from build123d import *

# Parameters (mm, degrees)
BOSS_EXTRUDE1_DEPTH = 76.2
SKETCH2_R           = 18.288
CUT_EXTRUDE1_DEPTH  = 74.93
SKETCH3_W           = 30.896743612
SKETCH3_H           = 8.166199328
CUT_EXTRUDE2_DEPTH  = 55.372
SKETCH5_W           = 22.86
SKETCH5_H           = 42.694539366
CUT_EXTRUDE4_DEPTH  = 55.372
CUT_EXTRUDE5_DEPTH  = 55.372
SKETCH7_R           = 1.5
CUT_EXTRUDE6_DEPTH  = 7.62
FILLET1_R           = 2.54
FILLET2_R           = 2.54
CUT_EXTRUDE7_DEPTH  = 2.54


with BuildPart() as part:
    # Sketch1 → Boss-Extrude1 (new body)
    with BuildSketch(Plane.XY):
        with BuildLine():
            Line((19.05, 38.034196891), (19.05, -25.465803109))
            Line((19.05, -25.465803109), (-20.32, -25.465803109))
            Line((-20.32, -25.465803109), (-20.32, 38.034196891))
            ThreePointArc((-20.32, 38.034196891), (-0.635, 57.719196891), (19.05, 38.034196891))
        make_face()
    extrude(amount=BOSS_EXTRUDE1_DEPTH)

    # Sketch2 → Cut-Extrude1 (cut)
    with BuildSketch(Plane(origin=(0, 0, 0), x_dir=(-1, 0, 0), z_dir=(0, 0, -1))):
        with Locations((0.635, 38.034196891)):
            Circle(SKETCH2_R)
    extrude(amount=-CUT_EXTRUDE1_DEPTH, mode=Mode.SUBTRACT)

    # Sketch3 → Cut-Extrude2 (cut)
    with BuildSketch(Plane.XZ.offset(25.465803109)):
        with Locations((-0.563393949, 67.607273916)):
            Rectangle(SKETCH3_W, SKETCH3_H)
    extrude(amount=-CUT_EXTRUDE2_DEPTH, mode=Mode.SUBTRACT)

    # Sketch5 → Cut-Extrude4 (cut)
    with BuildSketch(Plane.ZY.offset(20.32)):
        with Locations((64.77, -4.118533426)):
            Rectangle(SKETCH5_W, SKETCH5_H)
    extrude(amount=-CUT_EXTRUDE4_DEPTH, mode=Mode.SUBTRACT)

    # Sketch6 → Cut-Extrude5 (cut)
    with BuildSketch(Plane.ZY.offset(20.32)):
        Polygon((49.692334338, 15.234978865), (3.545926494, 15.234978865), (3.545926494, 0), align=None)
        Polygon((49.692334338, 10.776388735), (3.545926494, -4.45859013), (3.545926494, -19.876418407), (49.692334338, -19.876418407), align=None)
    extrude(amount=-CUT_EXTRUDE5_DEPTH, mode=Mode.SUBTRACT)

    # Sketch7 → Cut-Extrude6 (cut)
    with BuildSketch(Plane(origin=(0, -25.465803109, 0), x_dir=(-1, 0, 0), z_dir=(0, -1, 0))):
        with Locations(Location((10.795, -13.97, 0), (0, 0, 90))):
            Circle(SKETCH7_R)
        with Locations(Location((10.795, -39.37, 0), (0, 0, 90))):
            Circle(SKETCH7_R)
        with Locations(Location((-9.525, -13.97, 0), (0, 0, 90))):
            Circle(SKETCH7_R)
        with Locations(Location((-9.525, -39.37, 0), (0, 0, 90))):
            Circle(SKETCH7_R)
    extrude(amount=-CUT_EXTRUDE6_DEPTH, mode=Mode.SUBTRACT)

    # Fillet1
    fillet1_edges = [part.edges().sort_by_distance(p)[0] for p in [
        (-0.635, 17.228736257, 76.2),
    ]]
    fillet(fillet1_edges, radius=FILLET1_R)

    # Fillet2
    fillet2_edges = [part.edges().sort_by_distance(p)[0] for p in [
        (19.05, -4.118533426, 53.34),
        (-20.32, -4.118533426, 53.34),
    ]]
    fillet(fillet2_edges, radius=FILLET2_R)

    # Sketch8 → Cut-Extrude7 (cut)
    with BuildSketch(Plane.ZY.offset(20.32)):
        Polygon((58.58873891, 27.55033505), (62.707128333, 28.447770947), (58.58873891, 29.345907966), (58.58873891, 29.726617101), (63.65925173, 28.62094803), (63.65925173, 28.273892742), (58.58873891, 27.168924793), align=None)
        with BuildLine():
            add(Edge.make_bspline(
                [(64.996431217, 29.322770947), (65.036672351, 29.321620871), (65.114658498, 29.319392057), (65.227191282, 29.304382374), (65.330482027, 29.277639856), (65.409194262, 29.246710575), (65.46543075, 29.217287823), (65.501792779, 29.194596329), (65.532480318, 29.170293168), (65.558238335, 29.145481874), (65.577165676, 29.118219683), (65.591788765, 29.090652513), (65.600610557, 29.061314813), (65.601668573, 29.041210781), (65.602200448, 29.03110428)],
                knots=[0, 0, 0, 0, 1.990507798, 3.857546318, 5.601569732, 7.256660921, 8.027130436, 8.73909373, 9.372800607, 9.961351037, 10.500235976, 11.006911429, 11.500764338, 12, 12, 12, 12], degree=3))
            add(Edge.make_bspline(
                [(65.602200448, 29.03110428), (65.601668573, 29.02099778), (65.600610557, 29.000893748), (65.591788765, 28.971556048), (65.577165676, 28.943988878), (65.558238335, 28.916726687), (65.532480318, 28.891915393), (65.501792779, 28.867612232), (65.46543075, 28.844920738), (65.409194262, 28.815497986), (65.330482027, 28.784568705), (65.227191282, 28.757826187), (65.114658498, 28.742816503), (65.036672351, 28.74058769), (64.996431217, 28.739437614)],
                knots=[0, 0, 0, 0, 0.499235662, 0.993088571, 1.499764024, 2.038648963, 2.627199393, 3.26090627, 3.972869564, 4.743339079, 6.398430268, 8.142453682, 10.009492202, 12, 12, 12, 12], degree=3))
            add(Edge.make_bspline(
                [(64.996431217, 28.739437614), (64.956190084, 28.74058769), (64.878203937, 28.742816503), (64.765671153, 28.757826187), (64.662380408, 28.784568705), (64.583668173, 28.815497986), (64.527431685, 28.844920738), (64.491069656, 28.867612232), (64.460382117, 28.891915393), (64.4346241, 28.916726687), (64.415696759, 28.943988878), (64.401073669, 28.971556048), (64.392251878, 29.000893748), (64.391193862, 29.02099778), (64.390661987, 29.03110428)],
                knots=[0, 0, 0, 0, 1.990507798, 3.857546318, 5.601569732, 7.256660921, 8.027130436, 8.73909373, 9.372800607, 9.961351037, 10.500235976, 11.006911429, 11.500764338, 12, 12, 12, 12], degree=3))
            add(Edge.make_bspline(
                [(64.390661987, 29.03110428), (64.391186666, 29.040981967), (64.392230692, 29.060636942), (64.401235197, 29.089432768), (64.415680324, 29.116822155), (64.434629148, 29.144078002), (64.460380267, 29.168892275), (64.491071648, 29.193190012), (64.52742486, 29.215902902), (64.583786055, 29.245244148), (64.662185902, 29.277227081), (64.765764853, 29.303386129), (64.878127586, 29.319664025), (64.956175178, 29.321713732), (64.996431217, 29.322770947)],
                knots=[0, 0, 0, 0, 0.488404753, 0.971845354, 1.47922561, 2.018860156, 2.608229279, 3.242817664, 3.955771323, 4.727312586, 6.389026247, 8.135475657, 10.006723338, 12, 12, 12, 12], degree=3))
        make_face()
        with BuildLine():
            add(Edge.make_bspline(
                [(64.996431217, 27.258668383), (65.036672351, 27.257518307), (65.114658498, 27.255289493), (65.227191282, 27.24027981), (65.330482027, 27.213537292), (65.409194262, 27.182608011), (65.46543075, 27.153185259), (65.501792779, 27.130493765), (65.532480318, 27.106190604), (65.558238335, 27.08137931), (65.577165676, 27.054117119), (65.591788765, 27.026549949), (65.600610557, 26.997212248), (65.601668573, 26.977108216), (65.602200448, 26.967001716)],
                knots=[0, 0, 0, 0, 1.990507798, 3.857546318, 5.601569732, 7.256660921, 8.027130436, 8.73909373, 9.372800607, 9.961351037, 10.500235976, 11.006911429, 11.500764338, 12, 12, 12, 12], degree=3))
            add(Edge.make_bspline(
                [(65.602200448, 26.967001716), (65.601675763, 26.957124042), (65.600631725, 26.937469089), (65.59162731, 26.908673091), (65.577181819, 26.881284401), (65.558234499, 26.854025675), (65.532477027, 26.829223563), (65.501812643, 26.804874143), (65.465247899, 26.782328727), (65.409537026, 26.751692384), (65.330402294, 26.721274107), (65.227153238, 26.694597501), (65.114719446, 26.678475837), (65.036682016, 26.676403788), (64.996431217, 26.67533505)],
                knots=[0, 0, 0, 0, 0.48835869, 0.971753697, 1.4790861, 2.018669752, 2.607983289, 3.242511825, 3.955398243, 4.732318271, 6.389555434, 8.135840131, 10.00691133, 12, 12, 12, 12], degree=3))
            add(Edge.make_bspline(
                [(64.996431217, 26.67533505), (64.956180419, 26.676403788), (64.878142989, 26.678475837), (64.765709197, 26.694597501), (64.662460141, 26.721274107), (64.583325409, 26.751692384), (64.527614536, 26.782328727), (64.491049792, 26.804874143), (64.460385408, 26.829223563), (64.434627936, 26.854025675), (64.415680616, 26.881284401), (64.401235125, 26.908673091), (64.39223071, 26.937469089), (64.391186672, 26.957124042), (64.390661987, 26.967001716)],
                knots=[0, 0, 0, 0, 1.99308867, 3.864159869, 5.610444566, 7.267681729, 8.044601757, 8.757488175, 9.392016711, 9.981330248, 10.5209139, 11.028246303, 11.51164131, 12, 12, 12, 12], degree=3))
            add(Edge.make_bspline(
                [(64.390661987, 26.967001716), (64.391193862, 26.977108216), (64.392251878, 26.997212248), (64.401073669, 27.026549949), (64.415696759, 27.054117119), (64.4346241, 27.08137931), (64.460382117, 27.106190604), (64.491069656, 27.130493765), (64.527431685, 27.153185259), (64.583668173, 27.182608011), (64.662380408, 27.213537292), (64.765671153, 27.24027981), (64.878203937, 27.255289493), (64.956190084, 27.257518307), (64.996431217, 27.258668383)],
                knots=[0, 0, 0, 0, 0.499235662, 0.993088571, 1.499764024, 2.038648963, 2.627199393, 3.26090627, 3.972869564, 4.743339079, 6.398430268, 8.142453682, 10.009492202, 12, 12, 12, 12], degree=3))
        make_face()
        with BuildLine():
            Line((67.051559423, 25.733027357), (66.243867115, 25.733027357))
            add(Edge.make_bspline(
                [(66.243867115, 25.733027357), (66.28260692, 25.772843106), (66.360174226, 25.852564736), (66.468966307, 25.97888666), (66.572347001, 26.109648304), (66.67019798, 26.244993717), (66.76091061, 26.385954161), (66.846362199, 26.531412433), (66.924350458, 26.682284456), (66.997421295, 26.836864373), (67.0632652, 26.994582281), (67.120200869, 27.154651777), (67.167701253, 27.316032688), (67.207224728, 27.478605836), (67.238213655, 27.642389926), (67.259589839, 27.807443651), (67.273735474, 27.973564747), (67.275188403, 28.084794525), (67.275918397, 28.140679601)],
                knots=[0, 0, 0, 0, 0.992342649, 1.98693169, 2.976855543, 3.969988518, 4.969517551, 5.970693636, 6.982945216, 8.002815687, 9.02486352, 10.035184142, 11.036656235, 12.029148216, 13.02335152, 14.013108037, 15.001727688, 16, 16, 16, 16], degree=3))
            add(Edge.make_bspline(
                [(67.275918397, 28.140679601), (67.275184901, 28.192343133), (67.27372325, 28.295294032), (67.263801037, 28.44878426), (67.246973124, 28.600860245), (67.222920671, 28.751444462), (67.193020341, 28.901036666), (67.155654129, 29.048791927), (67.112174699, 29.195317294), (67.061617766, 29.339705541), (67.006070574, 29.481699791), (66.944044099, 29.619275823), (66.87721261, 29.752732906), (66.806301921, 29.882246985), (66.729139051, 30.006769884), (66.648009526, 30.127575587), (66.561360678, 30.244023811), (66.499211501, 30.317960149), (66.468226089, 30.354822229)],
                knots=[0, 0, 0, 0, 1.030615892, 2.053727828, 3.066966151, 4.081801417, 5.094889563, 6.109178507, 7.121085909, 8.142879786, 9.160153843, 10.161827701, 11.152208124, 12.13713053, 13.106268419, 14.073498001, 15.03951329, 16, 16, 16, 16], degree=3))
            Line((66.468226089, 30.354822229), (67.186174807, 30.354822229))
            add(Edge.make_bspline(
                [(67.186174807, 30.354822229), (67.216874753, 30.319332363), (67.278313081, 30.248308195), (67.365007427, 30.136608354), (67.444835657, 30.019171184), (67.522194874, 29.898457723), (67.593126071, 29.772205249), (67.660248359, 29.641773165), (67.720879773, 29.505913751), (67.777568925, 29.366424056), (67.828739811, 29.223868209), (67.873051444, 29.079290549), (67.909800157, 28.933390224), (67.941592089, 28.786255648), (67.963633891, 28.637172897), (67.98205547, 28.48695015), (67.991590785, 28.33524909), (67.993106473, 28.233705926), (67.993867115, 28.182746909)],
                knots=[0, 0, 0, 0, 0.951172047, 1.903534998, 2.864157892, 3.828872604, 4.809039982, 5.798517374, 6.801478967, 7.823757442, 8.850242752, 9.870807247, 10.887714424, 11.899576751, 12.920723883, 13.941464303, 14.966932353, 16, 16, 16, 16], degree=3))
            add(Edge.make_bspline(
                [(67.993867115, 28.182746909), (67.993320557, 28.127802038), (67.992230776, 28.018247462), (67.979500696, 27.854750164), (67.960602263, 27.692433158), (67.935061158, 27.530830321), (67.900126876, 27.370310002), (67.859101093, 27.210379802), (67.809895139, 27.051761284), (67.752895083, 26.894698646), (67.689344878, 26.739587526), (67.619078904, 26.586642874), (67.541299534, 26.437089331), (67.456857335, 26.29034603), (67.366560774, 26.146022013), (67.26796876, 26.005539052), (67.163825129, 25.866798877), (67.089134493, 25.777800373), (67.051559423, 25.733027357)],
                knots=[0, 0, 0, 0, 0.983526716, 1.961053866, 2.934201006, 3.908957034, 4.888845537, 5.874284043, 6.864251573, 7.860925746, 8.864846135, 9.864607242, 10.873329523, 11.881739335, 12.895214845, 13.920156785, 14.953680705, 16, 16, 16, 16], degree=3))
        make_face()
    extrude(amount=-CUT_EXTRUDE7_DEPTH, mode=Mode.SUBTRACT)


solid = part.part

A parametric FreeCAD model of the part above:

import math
import FreeCAD as App
import Part
import Sketcher
Q = App.Units.Quantity


def edges_at(feature, points):
    """Names of the edges that pass closest to the given points."""
    edges = feature.Shape.Edges
    near = lambda p: min(range(len(edges)), key=lambda i: edges[i].distToShape(Part.Vertex(*p))[0])
    return sorted({f"Edge{near(p) + 1}" for p in points})

doc = App.newDocument("Part")
body = doc.addObject("PartDesign::Body", "Body")

sketch1 = body.newObject("Sketcher::SketchObject", "Sketch")
sketch1.AttachmentSupport = (doc.getObject("XY_Plane"), [""])
sketch1.MapMode = "FlatFace"
sketch1.addGeometry([
    Part.LineSegment(App.Vector(19.05, -25.465803, 0), App.Vector(19.05, 38.034197, 0)),
    Part.ArcOfCircle(Part.Circle(App.Vector(-0.635, 38.034197, 0), App.Vector(0, 0, 1), 19.685), math.radians(0), math.radians(180)),
    Part.LineSegment(App.Vector(-20.32, 38.034197, 0), App.Vector(-20.32, -25.465803, 0)),
    Part.LineSegment(App.Vector(-20.32, -25.465803, 0), App.Vector(19.05, -25.465803, 0)),
], False)
sketch1.addConstraint([
    Sketcher.Constraint("Tangent", 0, 2, 1, 1),
    Sketcher.Constraint("Tangent", 1, 2, 2, 1),
    Sketcher.Constraint("Coincident", 2, 2, 3, 1),
    Sketcher.Constraint("Coincident", 3, 2, 0, 1),
    Sketcher.Constraint("Vertical", 0),
    Sketcher.Constraint("Vertical", 2),
    Sketcher.Constraint("Horizontal", 3),
    Sketcher.Constraint("DistanceY", 0, 1, 0, 2, Q("2.5 in")),
    Sketcher.Constraint("Radius", 1, Q("0.775 in")),
    Sketcher.Constraint("DistanceX", 1, 2, -1, 1, Q("0.8 in")),
    Sketcher.Constraint("DistanceY", -1, 1, 1, 3, 38.034197),
])
pad1 = body.newObject("PartDesign::Pad", "Pad")
pad1.Profile = sketch1
pad1.Length = Q("3 in")

sketch2 = body.newObject("Sketcher::SketchObject", "Sketch001")
sketch2.AttachmentSupport = (doc.getObject("XY_Plane"), [""])
sketch2.MapMode = "FlatFace"
sketch2.addGeometry(Part.Circle(App.Vector(-0.635, 38.034197, 0), App.Vector(0, 0, 1), 18.288), False)
sketch2.addConstraint([
    Sketcher.Constraint("Diameter", 0, Q("1.44 in")),
    Sketcher.Constraint("DistanceX", 0, 3, -1, 1, Q("0.025 in")),
    Sketcher.Constraint("DistanceY", -1, 1, 0, 3, 38.034197),
])
pocket1 = body.newObject("PartDesign::Pocket", "Pocket")
pocket1.Profile = sketch2
pocket1.Length = Q("2.95 in")
pocket1.Reversed = True

sketch3 = body.newObject("Sketcher::SketchObject", "Sketch002")
sketch3.AttachmentSupport = (doc.getObject("XZ_Plane"), [""])
sketch3.MapMode = "FlatFace"
sketch3.AttachmentOffset = App.Placement(App.Vector(0, 0, 25.465803), App.Rotation())
sketch3.addGeometry([
    Part.LineSegment(App.Vector(-16.011766, 71.690374, 0), App.Vector(-16.011766, 63.524174, 0)),
    Part.LineSegment(App.Vector(-16.011766, 63.524174, 0), App.Vector(14.884978, 63.524174, 0)),
    Part.LineSegment(App.Vector(14.884978, 63.524174, 0), App.Vector(14.884978, 71.690374, 0)),
    Part.LineSegment(App.Vector(14.884978, 71.690374, 0), App.Vector(-16.011766, 71.690374, 0)),
], False)
sketch3.addConstraint([
    Sketcher.Constraint("Coincident", 0, 2, 1, 1),
    Sketcher.Constraint("Coincident", 1, 2, 2, 1),
    Sketcher.Constraint("Coincident", 2, 2, 3, 1),
    Sketcher.Constraint("Coincident", 3, 2, 0, 1),
    Sketcher.Constraint("Vertical", 0),
    Sketcher.Constraint("Horizontal", 1),
    Sketcher.Constraint("Vertical", 2),
    Sketcher.Constraint("Horizontal", 3),
    Sketcher.Constraint("DistanceY", 0, 2, 0, 1, 8.166199),
    Sketcher.Constraint("DistanceX", 1, 1, 1, 2, 30.896744),
    Sketcher.Constraint("DistanceX", 0, 2, -1, 1, 16.011766),
    Sketcher.Constraint("DistanceY", -1, 1, 0, 2, 63.524174),
])
pocket2 = body.newObject("PartDesign::Pocket", "Pocket001")
pocket2.Profile = sketch3
pocket2.Length = Q("2.18 in")

sketch4 = body.newObject("Sketcher::SketchObject", "Sketch003")
sketch4.AttachmentSupport = (doc.getObject("YZ_Plane"), [""])
sketch4.MapMode = "FlatFace"
sketch4.AttachmentOffset = App.Placement(App.Vector(0, 0, -0.8 * 25.4), App.Rotation())
sketch4.addGeometry([
    Part.LineSegment(App.Vector(17.228736, 53.34, 0), App.Vector(-25.465803, 53.34, 0)),
    Part.LineSegment(App.Vector(-25.465803, 53.34, 0), App.Vector(-25.465803, 76.2, 0)),
    Part.LineSegment(App.Vector(-25.465803, 76.2, 0), App.Vector(17.228736, 76.2, 0)),
    Part.LineSegment(App.Vector(17.228736, 76.2, 0), App.Vector(17.228736, 53.34, 0)),
], False)
sketch4.addConstraint([
    Sketcher.Constraint("Coincident", 0, 2, 1, 1),
    Sketcher.Constraint("Coincident", 1, 2, 2, 1),
    Sketcher.Constraint("Coincident", 2, 2, 3, 1),
    Sketcher.Constraint("Coincident", 3, 2, 0, 1),
    Sketcher.Constraint("Horizontal", 0),
    Sketcher.Constraint("Vertical", 1),
    Sketcher.Constraint("Horizontal", 2),
    Sketcher.Constraint("Vertical", 3),
    Sketcher.Constraint("DistanceY", 1, 1, 1, 2, Q("0.9 in")),
    Sketcher.Constraint("DistanceY", -1, 1, 1, 2, Q("3 in")),
    Sketcher.Constraint("DistanceX", 0, 2, 0, 1, 42.694539),
    Sketcher.Constraint("DistanceX", 0, 2, -1, 1, 25.465803),
])
pocket3 = body.newObject("PartDesign::Pocket", "Pocket002")
pocket3.Profile = sketch4
pocket3.Length = Q("2.18 in")
pocket3.Reversed = True

sketch5 = body.newObject("Sketcher::SketchObject", "Sketch004")
sketch5.AttachmentSupport = (doc.getObject("YZ_Plane"), [""])
sketch5.MapMode = "FlatFace"
sketch5.AttachmentOffset = App.Placement(App.Vector(0, 0, -0.8 * 25.4), App.Rotation())
sketch5.addGeometry([
    Part.LineSegment(App.Vector(15.234979, 49.692334, 0), App.Vector(15.234979, 3.545926, 0)),
    Part.LineSegment(App.Vector(15.234979, 3.545926, 0), App.Vector(0, 3.545926, 0)),
    Part.LineSegment(App.Vector(0, 3.545926, 0), App.Vector(15.234979, 49.692334, 0)),
    Part.LineSegment(App.Vector(10.776389, 49.692334, 0), App.Vector(-4.45859, 3.545926, 0)),
    Part.LineSegment(App.Vector(-4.45859, 3.545926, 0), App.Vector(-19.876418, 3.545926, 0)),
    Part.LineSegment(App.Vector(-19.876418, 3.545926, 0), App.Vector(-19.876418, 49.692334, 0)),
    Part.LineSegment(App.Vector(-19.876418, 49.692334, 0), App.Vector(10.776389, 49.692334, 0)),
], False)
sketch5.addConstraint([
    Sketcher.Constraint("Coincident", 0, 2, 1, 1),
    Sketcher.Constraint("Coincident", 1, 2, 2, 1),
    Sketcher.Constraint("Coincident", 2, 2, 0, 1),
    Sketcher.Constraint("Coincident", 3, 2, 4, 1),
    Sketcher.Constraint("Coincident", 4, 2, 5, 1),
    Sketcher.Constraint("Coincident", 5, 2, 6, 1),
    Sketcher.Constraint("Coincident", 6, 2, 3, 1),
    Sketcher.Constraint("Vertical", 0),
    Sketcher.Constraint("Horizontal", 1),
    Sketcher.Constraint("Horizontal", 4),
    Sketcher.Constraint("Vertical", 5),
    Sketcher.Constraint("Horizontal", 6),
    Sketcher.Constraint("PointOnObject", 1, 2, -2),
    Sketcher.Constraint("Parallel", 2, 3),
    Sketcher.Constraint("Horizontal", 1, 2, 3, 2),
    Sketcher.Constraint("Horizontal", 2, 2, 5, 2),
    Sketcher.Constraint("DistanceX", 1, 2, 1, 1, 15.234979),
    Sketcher.Constraint("DistanceX", 4, 2, 4, 1, 15.417828),
    Sketcher.Constraint("Distance", 2, 48.59625),
    Sketcher.Constraint("DistanceX", 3, 2, -1, 1, 4.45859),
    Sketcher.Constraint("DistanceY", -1, 1, 0, 2, 3.545926),
])
pocket4 = body.newObject("PartDesign::Pocket", "Pocket003")
pocket4.Profile = sketch5
pocket4.Length = Q("2.18 in")
pocket4.Reversed = True

sketch6 = body.newObject("Sketcher::SketchObject", "Sketch005")
sketch6.AttachmentSupport = (doc.getObject("XZ_Plane"), [""])
sketch6.MapMode = "FlatFace"
sketch6.AttachmentOffset = App.Placement(App.Vector(0, 0, 25.465803), App.Rotation())
sketch6.addGeometry([
    Part.Circle(App.Vector(-10.795, 13.97, 0), App.Vector(0, 0, 1), 1.5),
    Part.Circle(App.Vector(-10.795, 39.37, 0), App.Vector(0, 0, 1), 1.5),
    Part.Circle(App.Vector(9.525, 13.97, 0), App.Vector(0, 0, 1), 1.5),
    Part.Circle(App.Vector(9.525, 39.37, 0), App.Vector(0, 0, 1), 1.5),
], False)
sketch6.addConstraint([
    Sketcher.Constraint("Equal", 0, 1),
    Sketcher.Constraint("Equal", 1, 2),
    Sketcher.Constraint("Equal", 2, 3),
    Sketcher.Constraint("Horizontal", 0, 3, 2, 3),
    Sketcher.Constraint("Horizontal", 1, 3, 3, 3),
    Sketcher.Constraint("Vertical", 0, 3, 1, 3),
    Sketcher.Constraint("Vertical", 2, 3, 3, 3),
    Sketcher.Constraint("DistanceY", 0, 3, 1, 3, Q("1 in")),
    Sketcher.Constraint("DistanceX", 0, 3, 2, 3, Q("0.8 in")),
    Sketcher.Constraint("Diameter", 0, 3.0),
    Sketcher.Constraint("DistanceY", -1, 1, 0, 3, Q("0.55 in")),
    Sketcher.Constraint("DistanceX", 0, 3, -1, 1, Q("0.425 in")),
])
pocket5 = body.newObject("PartDesign::Pocket", "Pocket004")
pocket5.Profile = sketch6
pocket5.Length = Q("0.3 in")
doc.recompute()

fillet = body.newObject("PartDesign::Fillet", "Fillet")
fillet.Base = (pocket5, edges_at(pocket5, [(-0.635, 17.229, 76.2)]))
fillet.Radius = Q("0.1 in")
doc.recompute()

fillet2 = body.newObject("PartDesign::Fillet", "Fillet001")
fillet2.Base = (fillet, edges_at(fillet, [(19.05, -4.119, 53.34), (-20.32, -4.119, 53.34)]))
fillet2.Radius = Q("0.1 in")

sketch7 = body.newObject("Sketcher::SketchObject", "Sketch006")
sketch7.AttachmentSupport = (doc.getObject("YZ_Plane"), [""])
sketch7.MapMode = "FlatFace"
sketch7.AttachmentOffset = App.Placement(App.Vector(0, 0, -0.8 * 25.4), App.Rotation())
sketch7.addGeometry([
    Part.LineSegment(App.Vector(28.447771, 62.707128, 0), App.Vector(27.550335, 58.588739, 0)),
    Part.LineSegment(App.Vector(27.550335, 58.588739, 0), App.Vector(27.168925, 58.588739, 0)),
    Part.LineSegment(App.Vector(27.168925, 58.588739, 0), App.Vector(28.273893, 63.659252, 0)),
    Part.LineSegment(App.Vector(28.273893, 63.659252, 0), App.Vector(28.620948, 63.659252, 0)),
    Part.LineSegment(App.Vector(28.620948, 63.659252, 0), App.Vector(29.726617, 58.588739, 0)),
    Part.LineSegment(App.Vector(29.726617, 58.588739, 0), App.Vector(29.345908, 58.588739, 0)),
    Part.LineSegment(App.Vector(29.345908, 58.588739, 0), App.Vector(28.447771, 62.707128, 0)),
    Part.BSplineCurve([App.Vector(29.322771, 64.996431, 0), App.Vector(29.321621, 65.036672, 0), App.Vector(29.319392, 65.114658, 0), App.Vector(29.304382, 65.227191, 0), App.Vector(29.27764, 65.330482, 0), App.Vector(29.246711, 65.409194, 0), App.Vector(29.217288, 65.465431, 0), App.Vector(29.194596, 65.501793, 0), App.Vector(29.170293, 65.53248, 0), App.Vector(29.145482, 65.558238, 0), App.Vector(29.11822, 65.577166, 0), App.Vector(29.090653, 65.591789, 0), App.Vector(29.061315, 65.600611, 0), App.Vector(29.041211, 65.601669, 0), App.Vector(29.031104, 65.6022, 0)], [4, 1, 1, 1, 1, 1, 1, 1, 1, 1, 1, 1, 4], [0, 1.990507798, 3.857546318, 5.601569732, 7.256660921, 8.027130436, 8.73909373, 9.372800607, 9.961351037, 10.500235976, 11.006911429, 11.500764338, 12], False, 3, [1, 1, 1, 1, 1, 1, 1, 1, 1, 1, 1, 1, 1, 1, 1], False),
    Part.BSplineCurve([App.Vector(29.031104, 64.390662, 0), App.Vector(29.040982, 64.391187, 0), App.Vector(29.060637, 64.392231, 0), App.Vector(29.089433, 64.401235, 0), App.Vector(29.116822, 64.41568, 0), App.Vector(29.144078, 64.434629, 0), App.Vector(29.168892, 64.46038, 0), App.Vector(29.19319, 64.491072, 0), App.Vector(29.215903, 64.527425, 0), App.Vector(29.245244, 64.583786, 0), App.Vector(29.277227, 64.662186, 0), App.Vector(29.303386, 64.765765, 0), App.Vector(29.319664, 64.878128, 0), App.Vector(29.321714, 64.956175, 0), App.Vector(29.322771, 64.996431, 0)], [4, 1, 1, 1, 1, 1, 1, 1, 1, 1, 1, 1, 4], [0, 0.488404753, 0.971845354, 1.47922561, 2.018860156, 2.608229279, 3.242817664, 3.955771323, 4.727312586, 6.389026247, 8.135475657, 10.006723338, 12], False, 3, [1, 1, 1, 1, 1, 1, 1, 1, 1, 1, 1, 1, 1, 1, 1], False),
    Part.BSplineCurve([App.Vector(28.739438, 64.996431, 0), App.Vector(28.740588, 64.95619, 0), App.Vector(28.742817, 64.878204, 0), App.Vector(28.757826, 64.765671, 0), App.Vector(28.784569, 64.66238, 0), App.Vector(28.815498, 64.583668, 0), App.Vector(28.844921, 64.527432, 0), App.Vector(28.867612, 64.49107, 0), App.Vector(28.891915, 64.460382, 0), App.Vector(28.916727, 64.434624, 0), App.Vector(28.943989, 64.415697, 0), App.Vector(28.971556, 64.401074, 0), App.Vector(29.000894, 64.392252, 0), App.Vector(29.020998, 64.391194, 0), App.Vector(29.031104, 64.390662, 0)], [4, 1, 1, 1, 1, 1, 1, 1, 1, 1, 1, 1, 4], [0, 1.990507798, 3.857546318, 5.601569732, 7.256660921, 8.027130436, 8.73909373, 9.372800607, 9.961351037, 10.500235976, 11.006911429, 11.500764338, 12], False, 3, [1, 1, 1, 1, 1, 1, 1, 1, 1, 1, 1, 1, 1, 1, 1], False),
    Part.BSplineCurve([App.Vector(29.031104, 65.6022, 0), App.Vector(29.020998, 65.601669, 0), App.Vector(29.000894, 65.600611, 0), App.Vector(28.971556, 65.591789, 0), App.Vector(28.943989, 65.577166, 0), App.Vector(28.916727, 65.558238, 0), App.Vector(28.891915, 65.53248, 0), App.Vector(28.867612, 65.501793, 0), App.Vector(28.844921, 65.465431, 0), App.Vector(28.815498, 65.409194, 0), App.Vector(28.784569, 65.330482, 0), App.Vector(28.757826, 65.227191, 0), App.Vector(28.742817, 65.114658, 0), App.Vector(28.740588, 65.036672, 0), App.Vector(28.739438, 64.996431, 0)], [4, 1, 1, 1, 1, 1, 1, 1, 1, 1, 1, 1, 4], [0, 0.499235662, 0.993088571, 1.499764024, 2.038648963, 2.627199393, 3.26090627, 3.972869564, 4.743339079, 6.398430268, 8.142453682, 10.009492202, 12], False, 3, [1, 1, 1, 1, 1, 1, 1, 1, 1, 1, 1, 1, 1, 1, 1], False),
    Part.BSplineCurve([App.Vector(27.258668, 64.996431, 0), App.Vector(27.257518, 65.036672, 0), App.Vector(27.255289, 65.114658, 0), App.Vector(27.24028, 65.227191, 0), App.Vector(27.213537, 65.330482, 0), App.Vector(27.182608, 65.409194, 0), App.Vector(27.153185, 65.465431, 0), App.Vector(27.130494, 65.501793, 0), App.Vector(27.106191, 65.53248, 0), App.Vector(27.081379, 65.558238, 0), App.Vector(27.054117, 65.577166, 0), App.Vector(27.02655, 65.591789, 0), App.Vector(26.997212, 65.600611, 0), App.Vector(26.977108, 65.601669, 0), App.Vector(26.967002, 65.6022, 0)], [4, 1, 1, 1, 1, 1, 1, 1, 1, 1, 1, 1, 4], [0, 1.990507798, 3.857546318, 5.601569732, 7.256660921, 8.027130436, 8.73909373, 9.372800607, 9.961351037, 10.500235976, 11.006911429, 11.500764338, 12], False, 3, [1, 1, 1, 1, 1, 1, 1, 1, 1, 1, 1, 1, 1, 1, 1], False),
    Part.BSplineCurve([App.Vector(26.967002, 64.390662, 0), App.Vector(26.977108, 64.391194, 0), App.Vector(26.997212, 64.392252, 0), App.Vector(27.02655, 64.401074, 0), App.Vector(27.054117, 64.415697, 0), App.Vector(27.081379, 64.434624, 0), App.Vector(27.106191, 64.460382, 0), App.Vector(27.130494, 64.49107, 0), App.Vector(27.153185, 64.527432, 0), App.Vector(27.182608, 64.583668, 0), App.Vector(27.213537, 64.66238, 0), App.Vector(27.24028, 64.765671, 0), App.Vector(27.255289, 64.878204, 0), App.Vector(27.257518, 64.95619, 0), App.Vector(27.258668, 64.996431, 0)], [4, 1, 1, 1, 1, 1, 1, 1, 1, 1, 1, 1, 4], [0, 0.499235662, 0.993088571, 1.499764024, 2.038648963, 2.627199393, 3.26090627, 3.972869564, 4.743339079, 6.398430268, 8.142453682, 10.009492202, 12], False, 3, [1, 1, 1, 1, 1, 1, 1, 1, 1, 1, 1, 1, 1, 1, 1], False),
    Part.BSplineCurve([App.Vector(26.675335, 64.996431, 0), App.Vector(26.676404, 64.95618, 0), App.Vector(26.678476, 64.878143, 0), App.Vector(26.694598, 64.765709, 0), App.Vector(26.721274, 64.66246, 0), App.Vector(26.751692, 64.583325, 0), App.Vector(26.782329, 64.527615, 0), App.Vector(26.804874, 64.49105, 0), App.Vector(26.829224, 64.460385, 0), App.Vector(26.854026, 64.434628, 0), App.Vector(26.881284, 64.415681, 0), App.Vector(26.908673, 64.401235, 0), App.Vector(26.937469, 64.392231, 0), App.Vector(26.957124, 64.391187, 0), App.Vector(26.967002, 64.390662, 0)], [4, 1, 1, 1, 1, 1, 1, 1, 1, 1, 1, 1, 4], [0, 1.99308867, 3.864159869, 5.610444566, 7.267681729, 8.044601757, 8.757488175, 9.392016711, 9.981330248, 10.5209139, 11.028246303, 11.51164131, 12], False, 3, [1, 1, 1, 1, 1, 1, 1, 1, 1, 1, 1, 1, 1, 1, 1], False),
    Part.BSplineCurve([App.Vector(26.967002, 65.6022, 0), App.Vector(26.957124, 65.601676, 0), App.Vector(26.937469, 65.600632, 0), App.Vector(26.908673, 65.591627, 0), App.Vector(26.881284, 65.577182, 0), App.Vector(26.854026, 65.558234, 0), App.Vector(26.829224, 65.532477, 0), App.Vector(26.804874, 65.501813, 0), App.Vector(26.782329, 65.465248, 0), App.Vector(26.751692, 65.409537, 0), App.Vector(26.721274, 65.330402, 0), App.Vector(26.694598, 65.227153, 0), App.Vector(26.678476, 65.114719, 0), App.Vector(26.676404, 65.036682, 0), App.Vector(26.675335, 64.996431, 0)], [4, 1, 1, 1, 1, 1, 1, 1, 1, 1, 1, 1, 4], [0, 0.48835869, 0.971753697, 1.4790861, 2.018669752, 2.607983289, 3.242511825, 3.955398243, 4.732318271, 6.389555434, 8.135840131, 10.00691133, 12], False, 3, [1, 1, 1, 1, 1, 1, 1, 1, 1, 1, 1, 1, 1, 1, 1], False),
    Part.LineSegment(App.Vector(25.733027, 66.243867, 0), App.Vector(25.733027, 67.051559, 0)),
    Part.BSplineCurve([App.Vector(28.182747, 67.993867, 0), App.Vector(28.127802, 67.993321, 0), App.Vector(28.018247, 67.992231, 0), App.Vector(27.85475, 67.979501, 0), App.Vector(27.692433, 67.960602, 0), App.Vector(27.53083, 67.935061, 0), App.Vector(27.37031, 67.900127, 0), App.Vector(27.21038, 67.859101, 0), App.Vector(27.051761, 67.809895, 0), App.Vector(26.894699, 67.752895, 0), App.Vector(26.739588, 67.689345, 0), App.Vector(26.586643, 67.619079, 0), App.Vector(26.437089, 67.5413, 0), App.Vector(26.290346, 67.456857, 0), App.Vector(26.146022, 67.366561, 0), App.Vector(26.005539, 67.267969, 0), App.Vector(25.866799, 67.163825, 0), App.Vector(25.7778, 67.089134, 0), App.Vector(25.733027, 67.051559, 0)], [4, 1, 1, 1, 1, 1, 1, 1, 1, 1, 1, 1, 1, 1, 1, 1, 4], [0, 0.983526716, 1.961053866, 2.934201006, 3.908957034, 4.888845537, 5.874284043, 6.864251573, 7.860925746, 8.864846135, 9.864607242, 10.873329523, 11.881739335, 12.895214845, 13.920156785, 14.953680705, 16], False, 3, [1, 1, 1, 1, 1, 1, 1, 1, 1, 1, 1, 1, 1, 1, 1, 1, 1, 1, 1], False),
    Part.BSplineCurve([App.Vector(30.354822, 67.186175, 0), App.Vector(30.319332, 67.216875, 0), App.Vector(30.248308, 67.278313, 0), App.Vector(30.136608, 67.365007, 0), App.Vector(30.019171, 67.444836, 0), App.Vector(29.898458, 67.522195, 0), App.Vector(29.772205, 67.593126, 0), App.Vector(29.641773, 67.660248, 0), App.Vector(29.505914, 67.72088, 0), App.Vector(29.366424, 67.777569, 0), App.Vector(29.223868, 67.82874, 0), App.Vector(29.079291, 67.873051, 0), App.Vector(28.93339, 67.9098, 0), App.Vector(28.786256, 67.941592, 0), App.Vector(28.637173, 67.963634, 0), App.Vector(28.48695, 67.982055, 0), App.Vector(28.335249, 67.991591, 0), App.Vector(28.233706, 67.993106, 0), App.Vector(28.182747, 67.993867, 0)], [4, 1, 1, 1, 1, 1, 1, 1, 1, 1, 1, 1, 1, 1, 1, 1, 4], [0, 0.951172047, 1.903534998, 2.864157892, 3.828872604, 4.809039982, 5.798517374, 6.801478967, 7.823757442, 8.850242752, 9.870807247, 10.887714424, 11.899576751, 12.920723883, 13.941464303, 14.966932353, 16], False, 3, [1, 1, 1, 1, 1, 1, 1, 1, 1, 1, 1, 1, 1, 1, 1, 1, 1, 1, 1], False),
    Part.LineSegment(App.Vector(30.354822, 67.186175, 0), App.Vector(30.354822, 66.468226, 0)),
    Part.BSplineCurve([App.Vector(28.14068, 67.275918, 0), App.Vector(28.192343, 67.275185, 0), App.Vector(28.295294, 67.273723, 0), App.Vector(28.448784, 67.263801, 0), App.Vector(28.60086, 67.246973, 0), App.Vector(28.751444, 67.222921, 0), App.Vector(28.901037, 67.19302, 0), App.Vector(29.048792, 67.155654, 0), App.Vector(29.195317, 67.112175, 0), App.Vector(29.339706, 67.061618, 0), App.Vector(29.4817, 67.006071, 0), App.Vector(29.619276, 66.944044, 0), App.Vector(29.752733, 66.877213, 0), App.Vector(29.882247, 66.806302, 0), App.Vector(30.00677, 66.729139, 0), App.Vector(30.127576, 66.64801, 0), App.Vector(30.244024, 66.561361, 0), App.Vector(30.31796, 66.499212, 0), App.Vector(30.354822, 66.468226, 0)], [4, 1, 1, 1, 1, 1, 1, 1, 1, 1, 1, 1, 1, 1, 1, 1, 4], [0, 1.030615892, 2.053727828, 3.066966151, 4.081801417, 5.094889563, 6.109178507, 7.121085909, 8.142879786, 9.160153843, 10.161827701, 11.152208124, 12.13713053, 13.106268419, 14.073498001, 15.03951329, 16], False, 3, [1, 1, 1, 1, 1, 1, 1, 1, 1, 1, 1, 1, 1, 1, 1, 1, 1, 1, 1], False),
    Part.BSplineCurve([App.Vector(25.733027, 66.243867, 0), App.Vector(25.772843, 66.282607, 0), App.Vector(25.852565, 66.360174, 0), App.Vector(25.978887, 66.468966, 0), App.Vector(26.109648, 66.572347, 0), App.Vector(26.244994, 66.670198, 0), App.Vector(26.385954, 66.760911, 0), App.Vector(26.531412, 66.846362, 0), App.Vector(26.682284, 66.92435, 0), App.Vector(26.836864, 66.997421, 0), App.Vector(26.994582, 67.063265, 0), App.Vector(27.154652, 67.120201, 0), App.Vector(27.316033, 67.167701, 0), App.Vector(27.478606, 67.207225, 0), App.Vector(27.64239, 67.238214, 0), App.Vector(27.807444, 67.25959, 0), App.Vector(27.973565, 67.273735, 0), App.Vector(28.084795, 67.275188, 0), App.Vector(28.14068, 67.275918, 0)], [4, 1, 1, 1, 1, 1, 1, 1, 1, 1, 1, 1, 1, 1, 1, 1, 4], [0, 0.992342649, 1.98693169, 2.976855543, 3.969988518, 4.969517551, 5.970693636, 6.982945216, 8.002815687, 9.02486352, 10.035184142, 11.036656235, 12.029148216, 13.02335152, 14.013108037, 15.001727688, 16], False, 3, [1, 1, 1, 1, 1, 1, 1, 1, 1, 1, 1, 1, 1, 1, 1, 1, 1, 1, 1], False),
], False)
sketch7.addConstraint([
    Sketcher.Constraint("Block", 7),
    Sketcher.Constraint("Block", 8),
    Sketcher.Constraint("Block", 9),
    Sketcher.Constraint("Block", 10),
    Sketcher.Constraint("Block", 11),
    Sketcher.Constraint("Block", 12),
    Sketcher.Constraint("Block", 13),
    Sketcher.Constraint("Block", 14),
    Sketcher.Constraint("Block", 16),
    Sketcher.Constraint("Block", 17),
    Sketcher.Constraint("Block", 19),
    Sketcher.Constraint("Block", 20),
    Sketcher.Constraint("Coincident", 0, 2, 1, 1),
    Sketcher.Constraint("Coincident", 1, 2, 2, 1),
    Sketcher.Constraint("Coincident", 2, 2, 3, 1),
    Sketcher.Constraint("Coincident", 3, 2, 4, 1),
    Sketcher.Constraint("Coincident", 4, 2, 5, 1),
    Sketcher.Constraint("Coincident", 5, 2, 6, 1),
    Sketcher.Constraint("Coincident", 6, 2, 0, 1),
    Sketcher.Constraint("Coincident", 15, 2, 16, 2),
    Sketcher.Constraint("Coincident", 17, 1, 18, 1),
    Sketcher.Constraint("Coincident", 18, 2, 19, 2),
    Sketcher.Constraint("Coincident", 20, 1, 15, 1),
    Sketcher.Constraint("Horizontal", 1),
    Sketcher.Constraint("Horizontal", 3),
    Sketcher.Constraint("Horizontal", 5),
    Sketcher.Constraint("Horizontal", 1, 2, 4, 2),
    Sketcher.Constraint("DistanceX", 1, 2, 1, 1, 0.38141),
    Sketcher.Constraint("DistanceX", 5, 2, 5, 1, 0.380709),
    Sketcher.Constraint("DistanceX", 3, 1, 3, 2, 0.347055),
    Sketcher.Constraint("DistanceY", -1, 1, 0, 2, 58.588739),
    Sketcher.Constraint("DistanceY", -1, 1, 2, 2, 63.659252),
    Sketcher.Constraint("DistanceX", -1, 1, 3, 2, 28.620948),
    Sketcher.Constraint("DistanceX", -1, 1, 6, 2, 28.447771),
    Sketcher.Constraint("DistanceY", -1, 1, 6, 2, 62.707128),
    Sketcher.Constraint("DistanceX", 3, 2, 4, 2, 1.105669),
    Sketcher.Constraint("Distance", 0, 4.215035),
])
pocket6 = body.newObject("PartDesign::Pocket", "Pocket005")
pocket6.Profile = sketch7
pocket6.Length = Q("0.1 in")
pocket6.Reversed = True

doc.recompute()
